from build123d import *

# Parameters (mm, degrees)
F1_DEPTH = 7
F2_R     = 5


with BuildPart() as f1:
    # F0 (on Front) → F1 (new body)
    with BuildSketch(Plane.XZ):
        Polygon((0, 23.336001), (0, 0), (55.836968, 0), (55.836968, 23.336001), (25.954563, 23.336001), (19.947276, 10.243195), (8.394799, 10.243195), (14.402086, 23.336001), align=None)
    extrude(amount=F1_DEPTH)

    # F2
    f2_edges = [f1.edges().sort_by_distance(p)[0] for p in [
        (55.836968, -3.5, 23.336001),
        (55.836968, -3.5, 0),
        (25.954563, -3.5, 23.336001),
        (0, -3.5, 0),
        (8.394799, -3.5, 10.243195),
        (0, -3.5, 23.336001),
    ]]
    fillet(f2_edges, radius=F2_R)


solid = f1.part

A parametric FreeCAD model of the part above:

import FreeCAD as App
import Part
import Sketcher
from FreeCAD import Vector
Q = App.Units.Quantity


def edges_at(feature, points):
    """Names of the edges that pass closest to the given points."""
    edges = feature.Shape.Edges
    near = lambda p: min(range(len(edges)), key=lambda i: edges[i].distToShape(Part.Vertex(*p))[0])
    return sorted({f"Edge{near(p) + 1}" for p in points})

doc = App.newDocument("Part")
params = doc.addObject("Spreadsheet::Sheet", "Params")
for row, (alias, value) in enumerate([
    ("pad1_length", "7 mm"),
    ("fillet_radius", "5 mm"),
], start=1):
    params.set(f"A{row}", alias)
    params.set(f"B{row}", "=" + value)
    params.setAlias(f"B{row}", alias)

body = doc.addObject("PartDesign::Body", "Body")

# Sketch on XZ plane
sketch1 = doc.addObject("Sketcher::SketchObject", "Sketch")
body.addObject(sketch1)
sketch1.AttachmentSupport = (doc.XZ_Plane, [""])
sketch1.MapMode = "FlatFace"
sketch1.addGeometry([
    Part.LineSegment(Vector(0, 23, 0), Vector(0, 0, 0)),  # 0
    Part.LineSegment(Vector(0, 0, 0), Vector(56, 0, 0)),  # 1
    Part.LineSegment(Vector(56, 0, 0), Vector(56, 23, 0)),  # 2
    Part.LineSegment(Vector(56, 23, 0), Vector(26, 23, 0)),  # 3
    Part.LineSegment(Vector(26, 23, 0), Vector(20, 10, 0)),  # 4
    Part.LineSegment(Vector(20, 10, 0), Vector(8, 10, 0)),  # 5
    Part.LineSegment(Vector(8, 10, 0), Vector(14, 23, 0)),  # 6
    Part.LineSegment(Vector(14, 23, 0), Vector(0, 23, 0)),  # 7
], False)
sketch1.addConstraint([
    Sketcher.Constraint("Coincident", 0, 2, 1, 1),
    Sketcher.Constraint("Coincident", 1, 2, 2, 1),
    Sketcher.Constraint("Coincident", 2, 2, 3, 1),
    Sketcher.Constraint("Coincident", 3, 2, 4, 1),
    Sketcher.Constraint("Coincident", 4, 2, 5, 1),
    Sketcher.Constraint("Coincident", 5, 2, 6, 1),
    Sketcher.Constraint("Coincident", 6, 2, 7, 1),
    Sketcher.Constraint("Coincident", 7, 2, 0, 1),
    Sketcher.Constraint("Vertical", 0),
    Sketcher.Constraint("Horizontal", 1),
    Sketcher.Constraint("Vertical", 2),
    Sketcher.Constraint("Horizontal", 3),
    Sketcher.Constraint("Horizontal", 5),
    Sketcher.Constraint("Horizontal", 7),
    Sketcher.Constraint("Coincident", 0, 2, -1, 1),
    Sketcher.Constraint("Parallel", 4, 6),
    Sketcher.Constraint("Horizontal", 3, 2, 6, 2),
    Sketcher.Constraint("DistanceY", 0, 2, 0, 1, Q("23.336001 mm")),
    Sketcher.Constraint("DistanceX", -1, 1, 5, 2, Q("8.394799 mm")),
    Sketcher.Constraint("DistanceX", 1, 1, 1, 2, Q("55.836968 mm")),
    Sketcher.Constraint("DistanceX", 3, 2, 3, 1, Q("29.882405 mm")),
    Sketcher.Constraint("DistanceX", 5, 2, 5, 1, Q("11.552477 mm")),
    Sketcher.Constraint("Distance", 4, Q("14.405175 mm")),
])
pad1 = doc.addObject("PartDesign::Pad", "Pad")
body.addObject(pad1)
pad1.Profile = sketch1
pad1.setExpression("Length", "Params.pad1_length")
doc.recompute()

fillet = doc.addObject("PartDesign::Fillet", "Fillet")
body.addObject(fillet)
fillet.Base = (pad1, edges_at(pad1, [
    (55.837, -3.5, 23.336),
    (55.837, -3.5, 0),
    (25.955, -3.5, 23.336),
    (0, -3.5, 0),
    (8.395, -3.5, 10.243),
    (0, -3.5, 23.336),
]))
fillet.setExpression("Radius", "Params.fillet_radius")

doc.recompute()
